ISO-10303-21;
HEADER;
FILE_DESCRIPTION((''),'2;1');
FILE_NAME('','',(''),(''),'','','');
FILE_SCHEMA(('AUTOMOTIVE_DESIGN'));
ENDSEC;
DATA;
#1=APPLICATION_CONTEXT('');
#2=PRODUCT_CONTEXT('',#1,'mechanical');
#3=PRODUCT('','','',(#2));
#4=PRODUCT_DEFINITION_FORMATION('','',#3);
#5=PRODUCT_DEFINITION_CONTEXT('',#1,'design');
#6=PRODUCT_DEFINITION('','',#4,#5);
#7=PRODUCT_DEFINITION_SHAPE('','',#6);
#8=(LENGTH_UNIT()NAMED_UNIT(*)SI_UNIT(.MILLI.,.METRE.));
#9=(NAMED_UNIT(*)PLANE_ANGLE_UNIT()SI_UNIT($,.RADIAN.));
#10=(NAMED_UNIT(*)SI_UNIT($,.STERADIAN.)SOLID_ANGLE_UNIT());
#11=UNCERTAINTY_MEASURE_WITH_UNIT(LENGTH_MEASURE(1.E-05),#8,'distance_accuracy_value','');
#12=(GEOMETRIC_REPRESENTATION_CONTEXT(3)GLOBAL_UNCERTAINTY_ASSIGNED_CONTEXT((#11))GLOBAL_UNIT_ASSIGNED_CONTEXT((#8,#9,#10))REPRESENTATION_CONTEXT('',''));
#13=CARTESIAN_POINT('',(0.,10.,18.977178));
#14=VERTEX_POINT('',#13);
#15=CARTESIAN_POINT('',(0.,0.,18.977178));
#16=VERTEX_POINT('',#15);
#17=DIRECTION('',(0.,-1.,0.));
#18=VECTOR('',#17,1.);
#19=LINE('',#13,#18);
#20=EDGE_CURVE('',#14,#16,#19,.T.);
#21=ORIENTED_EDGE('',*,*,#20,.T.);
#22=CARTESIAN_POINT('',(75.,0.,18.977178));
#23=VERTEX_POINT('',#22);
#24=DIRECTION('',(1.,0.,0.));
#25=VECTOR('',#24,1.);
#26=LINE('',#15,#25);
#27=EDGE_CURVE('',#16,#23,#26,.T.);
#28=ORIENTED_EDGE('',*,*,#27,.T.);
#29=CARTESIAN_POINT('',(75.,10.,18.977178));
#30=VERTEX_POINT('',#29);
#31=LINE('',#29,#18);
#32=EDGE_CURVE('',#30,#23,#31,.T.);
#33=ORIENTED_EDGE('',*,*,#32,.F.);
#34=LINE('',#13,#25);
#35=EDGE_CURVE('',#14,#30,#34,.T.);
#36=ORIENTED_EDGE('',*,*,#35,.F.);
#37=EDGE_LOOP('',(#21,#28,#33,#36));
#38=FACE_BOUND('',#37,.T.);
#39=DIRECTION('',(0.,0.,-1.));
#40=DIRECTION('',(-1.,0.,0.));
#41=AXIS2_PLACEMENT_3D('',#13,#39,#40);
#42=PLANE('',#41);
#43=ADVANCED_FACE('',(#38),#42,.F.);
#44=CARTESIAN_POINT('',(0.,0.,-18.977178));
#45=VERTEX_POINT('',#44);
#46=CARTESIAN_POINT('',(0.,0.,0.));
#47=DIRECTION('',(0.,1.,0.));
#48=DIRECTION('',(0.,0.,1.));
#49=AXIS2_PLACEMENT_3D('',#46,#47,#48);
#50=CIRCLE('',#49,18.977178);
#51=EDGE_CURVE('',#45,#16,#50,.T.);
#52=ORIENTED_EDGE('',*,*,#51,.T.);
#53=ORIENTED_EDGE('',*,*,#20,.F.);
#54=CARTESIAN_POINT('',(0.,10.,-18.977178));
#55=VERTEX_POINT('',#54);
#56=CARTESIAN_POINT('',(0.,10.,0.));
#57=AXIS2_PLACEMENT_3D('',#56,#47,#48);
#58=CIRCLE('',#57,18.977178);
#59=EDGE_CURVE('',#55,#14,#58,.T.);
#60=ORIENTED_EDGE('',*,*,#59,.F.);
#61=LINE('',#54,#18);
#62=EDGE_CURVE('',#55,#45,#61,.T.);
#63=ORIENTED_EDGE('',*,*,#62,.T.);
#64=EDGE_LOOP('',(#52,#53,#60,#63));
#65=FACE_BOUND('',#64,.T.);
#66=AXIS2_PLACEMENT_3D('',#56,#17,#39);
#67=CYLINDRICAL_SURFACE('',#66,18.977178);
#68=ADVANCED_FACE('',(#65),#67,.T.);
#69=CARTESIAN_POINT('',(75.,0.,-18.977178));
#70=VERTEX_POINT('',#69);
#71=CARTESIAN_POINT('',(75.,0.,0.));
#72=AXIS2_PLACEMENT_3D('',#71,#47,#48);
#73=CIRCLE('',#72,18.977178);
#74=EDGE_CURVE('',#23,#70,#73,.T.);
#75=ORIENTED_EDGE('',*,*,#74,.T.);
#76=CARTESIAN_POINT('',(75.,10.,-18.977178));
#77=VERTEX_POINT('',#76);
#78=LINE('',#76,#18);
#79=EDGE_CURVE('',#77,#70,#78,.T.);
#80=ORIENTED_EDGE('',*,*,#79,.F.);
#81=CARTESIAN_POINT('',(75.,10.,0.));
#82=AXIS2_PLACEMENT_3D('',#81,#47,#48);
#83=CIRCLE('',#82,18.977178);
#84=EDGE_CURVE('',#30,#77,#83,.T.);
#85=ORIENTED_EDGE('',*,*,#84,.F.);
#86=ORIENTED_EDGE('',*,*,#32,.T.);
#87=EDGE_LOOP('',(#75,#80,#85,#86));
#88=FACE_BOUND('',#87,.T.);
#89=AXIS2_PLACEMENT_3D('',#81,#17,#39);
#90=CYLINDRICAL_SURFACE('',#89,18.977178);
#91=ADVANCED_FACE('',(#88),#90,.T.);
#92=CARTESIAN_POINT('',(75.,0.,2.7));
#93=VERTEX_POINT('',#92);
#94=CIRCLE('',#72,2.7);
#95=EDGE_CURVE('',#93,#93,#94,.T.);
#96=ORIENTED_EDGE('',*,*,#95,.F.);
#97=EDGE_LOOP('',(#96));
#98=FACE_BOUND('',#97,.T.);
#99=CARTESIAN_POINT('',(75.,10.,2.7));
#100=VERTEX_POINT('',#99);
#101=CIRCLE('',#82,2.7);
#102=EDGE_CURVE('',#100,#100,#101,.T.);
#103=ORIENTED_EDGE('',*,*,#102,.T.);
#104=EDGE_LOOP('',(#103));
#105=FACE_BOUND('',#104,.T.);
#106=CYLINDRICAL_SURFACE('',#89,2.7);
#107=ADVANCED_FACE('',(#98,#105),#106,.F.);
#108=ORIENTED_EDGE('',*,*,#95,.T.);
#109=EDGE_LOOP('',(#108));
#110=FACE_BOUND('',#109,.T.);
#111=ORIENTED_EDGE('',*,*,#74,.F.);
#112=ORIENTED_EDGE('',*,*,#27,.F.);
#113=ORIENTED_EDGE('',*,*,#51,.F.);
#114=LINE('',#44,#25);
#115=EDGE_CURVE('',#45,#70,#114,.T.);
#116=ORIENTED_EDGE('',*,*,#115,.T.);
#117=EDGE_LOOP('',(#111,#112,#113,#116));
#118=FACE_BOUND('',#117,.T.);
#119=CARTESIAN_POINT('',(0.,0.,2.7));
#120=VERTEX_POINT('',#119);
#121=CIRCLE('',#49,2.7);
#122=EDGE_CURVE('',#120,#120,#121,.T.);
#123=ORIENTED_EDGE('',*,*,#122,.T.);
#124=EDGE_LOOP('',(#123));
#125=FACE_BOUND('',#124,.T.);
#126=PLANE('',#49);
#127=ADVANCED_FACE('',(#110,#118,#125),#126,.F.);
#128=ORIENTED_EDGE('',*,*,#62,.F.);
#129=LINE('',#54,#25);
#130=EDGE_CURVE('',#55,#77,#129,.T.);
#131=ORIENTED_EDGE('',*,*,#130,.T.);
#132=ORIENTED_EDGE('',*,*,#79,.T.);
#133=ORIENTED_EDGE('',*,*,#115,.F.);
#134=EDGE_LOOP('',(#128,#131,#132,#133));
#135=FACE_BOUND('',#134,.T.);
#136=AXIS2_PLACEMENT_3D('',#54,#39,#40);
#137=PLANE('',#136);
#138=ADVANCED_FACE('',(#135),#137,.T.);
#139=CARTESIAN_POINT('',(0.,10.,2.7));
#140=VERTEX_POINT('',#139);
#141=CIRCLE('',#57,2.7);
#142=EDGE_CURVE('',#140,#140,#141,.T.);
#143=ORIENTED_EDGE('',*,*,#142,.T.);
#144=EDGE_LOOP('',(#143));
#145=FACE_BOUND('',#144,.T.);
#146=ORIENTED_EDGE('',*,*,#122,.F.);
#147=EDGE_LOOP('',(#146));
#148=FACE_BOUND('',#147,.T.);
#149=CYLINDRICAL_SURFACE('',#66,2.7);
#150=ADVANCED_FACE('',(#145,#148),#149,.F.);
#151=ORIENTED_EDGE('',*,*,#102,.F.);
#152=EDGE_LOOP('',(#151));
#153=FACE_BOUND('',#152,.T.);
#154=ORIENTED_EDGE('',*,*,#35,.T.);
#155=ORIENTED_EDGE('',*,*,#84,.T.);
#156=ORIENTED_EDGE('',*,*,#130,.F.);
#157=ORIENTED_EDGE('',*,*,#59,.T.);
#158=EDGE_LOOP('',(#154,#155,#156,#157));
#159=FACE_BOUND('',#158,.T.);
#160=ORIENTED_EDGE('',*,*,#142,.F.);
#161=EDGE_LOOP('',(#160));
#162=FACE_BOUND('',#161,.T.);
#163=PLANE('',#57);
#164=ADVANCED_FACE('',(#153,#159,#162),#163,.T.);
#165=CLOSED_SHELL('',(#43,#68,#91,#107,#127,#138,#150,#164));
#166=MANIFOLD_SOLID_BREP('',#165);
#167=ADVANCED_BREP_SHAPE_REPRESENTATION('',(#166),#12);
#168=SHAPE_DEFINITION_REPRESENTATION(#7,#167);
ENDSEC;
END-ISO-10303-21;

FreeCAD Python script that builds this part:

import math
import FreeCAD as App
import Part
import Sketcher

V = App.Vector

doc = App.newDocument("Part")
params = doc.addObject("Spreadsheet::Sheet", "Params")
for row, (alias, value) in enumerate([
    ("sketch1_diameter", "5.4 mm"),
    ("sketch1_width", "75 mm"),
    ("pad1_length", "10 mm"),
], start=1):
    params.set(f"A{row}", alias)
    params.set(f"B{row}", "=" + value)
    params.setAlias(f"B{row}", alias)

body = doc.addObject("PartDesign::Body", "Body")

# Sketch on XZ plane
sketch1 = body.newObject("Sketcher::SketchObject", "Sketch")
sketch1.AttachmentSupport = (doc.getObject("XZ_Plane"), [""])
sketch1.MapMode = "FlatFace"
sketch1.addGeometry([
    Part.LineSegment(V(0, 18.977178, 0), V(75, 18.977178, 0)),  # 0
    Part.ArcOfCircle(Part.Circle(V(75, 0, 0), V(0, 0, 1), 18.977178), math.radians(-90), math.radians(90)),  # 1
    Part.LineSegment(V(75, -18.977178, 0), V(0, -18.977178, 0)),  # 2
    Part.ArcOfCircle(Part.Circle(V(0, 0, 0), V(0, 0, 1), 18.977178), math.radians(90), math.radians(270)),  # 3
    Part.Circle(V(0, 0, 0), V(0, 0, 1), 2.7),  # 4
    Part.Circle(V(75, 0, 0), V(0, 0, 1), 2.7),  # 5
], False)
sketch1.addConstraint([
    Sketcher.Constraint("Tangent", 0, 2, 1, 2),
    Sketcher.Constraint("Tangent", 1, 1, 2, 1),
    Sketcher.Constraint("Tangent", 2, 2, 3, 2),
    Sketcher.Constraint("Tangent", 3, 1, 0, 1),
    Sketcher.Constraint("Horizontal", 0),
    Sketcher.Constraint("Horizontal", 2),
    Sketcher.Constraint("Coincident", 3, 3, -1, 1),
    Sketcher.Constraint("Coincident", 4, 3, -1, 1),
    Sketcher.Constraint("Coincident", 5, 3, 1, 3),
    Sketcher.Constraint("Equal", 4, 5),
    Sketcher.Constraint("Diameter", 4, 5.4),
    Sketcher.Constraint("DistanceX", 0, 1, 0, 2, 75.0),
    Sketcher.Constraint("Radius", 1, 18.977178),
])
sketch1.setExpression("Constraints[10]", "Params.sketch1_diameter")
sketch1.setExpression("Constraints[11]", "Params.sketch1_width")
pad1 = body.newObject("PartDesign::Pad", "Pad")
pad1.Profile = sketch1
pad1.setExpression("Length", "Params.pad1_length")
pad1.Reversed = True

doc.recompute()
